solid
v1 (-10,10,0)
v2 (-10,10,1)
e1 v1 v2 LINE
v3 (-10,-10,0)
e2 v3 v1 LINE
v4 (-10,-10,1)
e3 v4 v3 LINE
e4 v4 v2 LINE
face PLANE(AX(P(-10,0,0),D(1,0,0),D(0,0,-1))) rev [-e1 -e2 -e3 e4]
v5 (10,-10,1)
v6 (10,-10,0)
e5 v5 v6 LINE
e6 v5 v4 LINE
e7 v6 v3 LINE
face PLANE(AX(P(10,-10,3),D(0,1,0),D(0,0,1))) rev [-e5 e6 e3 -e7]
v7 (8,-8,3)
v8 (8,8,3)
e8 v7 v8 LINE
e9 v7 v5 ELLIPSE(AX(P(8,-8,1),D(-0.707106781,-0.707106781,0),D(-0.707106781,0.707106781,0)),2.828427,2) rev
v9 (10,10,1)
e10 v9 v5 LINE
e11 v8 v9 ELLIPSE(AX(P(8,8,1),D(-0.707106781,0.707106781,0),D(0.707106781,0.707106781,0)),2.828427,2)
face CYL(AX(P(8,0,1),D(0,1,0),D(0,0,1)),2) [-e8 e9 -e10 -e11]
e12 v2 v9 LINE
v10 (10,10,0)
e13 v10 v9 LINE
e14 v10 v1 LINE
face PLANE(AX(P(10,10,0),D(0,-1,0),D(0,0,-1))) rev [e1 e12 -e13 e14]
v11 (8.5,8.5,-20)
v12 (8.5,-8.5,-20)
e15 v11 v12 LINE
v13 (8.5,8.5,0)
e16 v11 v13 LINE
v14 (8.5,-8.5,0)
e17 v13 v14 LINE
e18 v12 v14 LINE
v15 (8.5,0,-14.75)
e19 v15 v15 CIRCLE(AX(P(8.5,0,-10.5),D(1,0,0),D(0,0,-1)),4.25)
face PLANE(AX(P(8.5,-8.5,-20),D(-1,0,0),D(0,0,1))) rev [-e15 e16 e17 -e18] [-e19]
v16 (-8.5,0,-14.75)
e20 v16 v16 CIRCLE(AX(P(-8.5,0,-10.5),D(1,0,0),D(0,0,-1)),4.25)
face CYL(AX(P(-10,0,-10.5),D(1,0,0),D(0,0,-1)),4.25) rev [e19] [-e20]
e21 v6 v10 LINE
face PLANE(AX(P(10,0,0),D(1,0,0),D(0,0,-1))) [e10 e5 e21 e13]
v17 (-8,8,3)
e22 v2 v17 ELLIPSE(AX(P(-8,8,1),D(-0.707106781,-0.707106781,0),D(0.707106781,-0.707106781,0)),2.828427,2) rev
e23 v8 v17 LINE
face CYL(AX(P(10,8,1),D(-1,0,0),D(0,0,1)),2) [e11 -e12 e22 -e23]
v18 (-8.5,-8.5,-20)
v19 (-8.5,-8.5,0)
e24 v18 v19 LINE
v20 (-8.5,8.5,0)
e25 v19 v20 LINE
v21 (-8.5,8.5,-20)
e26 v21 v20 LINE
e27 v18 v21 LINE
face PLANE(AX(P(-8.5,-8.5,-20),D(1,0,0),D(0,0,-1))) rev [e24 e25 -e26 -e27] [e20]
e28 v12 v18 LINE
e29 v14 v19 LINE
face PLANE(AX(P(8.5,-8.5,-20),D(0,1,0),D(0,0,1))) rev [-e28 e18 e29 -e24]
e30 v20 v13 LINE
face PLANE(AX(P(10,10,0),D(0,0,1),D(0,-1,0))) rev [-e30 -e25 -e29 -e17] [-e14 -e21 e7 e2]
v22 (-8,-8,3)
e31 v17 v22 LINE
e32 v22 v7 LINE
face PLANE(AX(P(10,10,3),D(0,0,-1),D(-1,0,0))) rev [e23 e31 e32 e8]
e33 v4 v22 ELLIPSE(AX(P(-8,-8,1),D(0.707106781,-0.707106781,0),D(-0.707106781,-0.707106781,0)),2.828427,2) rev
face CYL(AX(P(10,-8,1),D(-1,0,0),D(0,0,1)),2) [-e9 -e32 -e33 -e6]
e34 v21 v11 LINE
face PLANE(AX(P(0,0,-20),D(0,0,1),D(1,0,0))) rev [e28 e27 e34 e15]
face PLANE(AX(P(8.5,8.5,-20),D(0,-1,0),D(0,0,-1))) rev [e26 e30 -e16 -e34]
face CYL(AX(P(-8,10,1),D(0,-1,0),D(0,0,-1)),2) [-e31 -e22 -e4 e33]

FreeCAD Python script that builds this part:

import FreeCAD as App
import Part
import Sketcher

V = App.Vector


def edges_at(feature, points):
    """Names of the edges that pass closest to the given points."""
    edges = feature.Shape.Edges
    near = lambda p: min(range(len(edges)), key=lambda i: edges[i].distToShape(Part.Vertex(*p))[0])
    return sorted({f"Edge{near(p) + 1}" for p in points})


def add_polygon(sketch, points):
    """Adds a closed chain of lines whose ends are joined by coincident constraints."""
    first, n = sketch.GeometryCount, len(points)
    for a, b in zip(points, points[1:] + points[:1]):
        sketch.addGeometry(Part.LineSegment(App.Vector(*a, 0), App.Vector(*b, 0)), False)
    for i in range(n):
        sketch.addConstraint(Sketcher.Constraint("Coincident", first + i, 2, first + (i + 1) % n, 1))

doc = App.newDocument("Part")
body = doc.addObject("PartDesign::Body", "Body")

# Sketch on YZ plane
sketch1 = doc.addObject("Sketcher::SketchObject", "Sketch")
body.addObject(sketch1)
sketch1.AttachmentSupport = (doc.YZ_Plane, [""])
sketch1.MapMode = "FlatFace"
add_polygon(sketch1, [(10, 3), (-10, 3), (-10, 0), (10, 0)])  # lines 0-3
sketch1.addConstraint([
    Sketcher.Constraint("Horizontal", 0),
    Sketcher.Constraint("Vertical", 1),
    Sketcher.Constraint("Horizontal", 2),
    Sketcher.Constraint("Vertical", 3),
    Sketcher.Constraint("Symmetric", 1, 2, 2, 2, -1, 1),
    Sketcher.Constraint("DistanceX", 0, 2, 0, 1, 20.0),
    Sketcher.Constraint("DistanceY", 1, 2, 1, 1, 3.0),
])
pad1 = doc.addObject("PartDesign::Pad", "Pad")
body.addObject(pad1)
pad1.Profile = sketch1
pad1.Length = 20
pad1.Midplane = True

# Sketch on XY plane
sketch2 = doc.addObject("Sketcher::SketchObject", "Sketch001")
body.addObject(sketch2)
sketch2.AttachmentSupport = (doc.XY_Plane, [""])
sketch2.MapMode = "FlatFace"
add_polygon(sketch2, [(8, 8), (8, -8), (-8, -8), (-8, 8)])  # lines 0-3
sketch2.addConstraint([
    Sketcher.Constraint("Vertical", 0),
    Sketcher.Constraint("Horizontal", 1),
    Sketcher.Constraint("Vertical", 2),
    Sketcher.Constraint("Horizontal", 3),
    Sketcher.Constraint("Symmetric", 0, 2, 2, 2, -1, 1),
    Sketcher.Constraint("Equal", 3, 0),
    Sketcher.Constraint("DistanceX", 1, 2, 1, 1, 17.0),
])
pad2 = doc.addObject("PartDesign::Pad", "Pad001")
body.addObject(pad2)
pad2.Profile = sketch2
pad2.Length = 20
pad2.Reversed = True

# Sketch on YZ plane
sketch3 = doc.addObject("Sketcher::SketchObject", "Sketch002")
body.addObject(sketch3)
sketch3.AttachmentSupport = (doc.YZ_Plane, [""])
sketch3.MapMode = "FlatFace"
sketch3.AttachmentOffset = App.Placement(V(0, 0, 8.5), App.Rotation())
sketch3.addGeometry(Part.Circle(V(0, -10.5, 0), V(0, 0, 1), 4.2), False)
sketch3.addConstraint([
    Sketcher.Constraint("PointOnObject", 0, 3, -2),
    Sketcher.Constraint("Diameter", 0, 8.5),
    Sketcher.Constraint("DistanceY", 0, 3, -1, 1, 10.5),
])
pocket1 = doc.addObject("PartDesign::Pocket", "Pocket")
body.addObject(pocket1)
pocket1.Profile = sketch3
pocket1.Type = "ThroughAll"
doc.recompute()

fillet = doc.addObject("PartDesign::Fillet", "Fillet")
body.addObject(fillet)
fillet.Base = (pocket1, edges_at(pocket1, [
    (-10, 0, 3),
    (0, -10, 3),
    (0, 10, 3),
    (10, 0, 3),
]))
fillet.Radius = 2

doc.recompute()
